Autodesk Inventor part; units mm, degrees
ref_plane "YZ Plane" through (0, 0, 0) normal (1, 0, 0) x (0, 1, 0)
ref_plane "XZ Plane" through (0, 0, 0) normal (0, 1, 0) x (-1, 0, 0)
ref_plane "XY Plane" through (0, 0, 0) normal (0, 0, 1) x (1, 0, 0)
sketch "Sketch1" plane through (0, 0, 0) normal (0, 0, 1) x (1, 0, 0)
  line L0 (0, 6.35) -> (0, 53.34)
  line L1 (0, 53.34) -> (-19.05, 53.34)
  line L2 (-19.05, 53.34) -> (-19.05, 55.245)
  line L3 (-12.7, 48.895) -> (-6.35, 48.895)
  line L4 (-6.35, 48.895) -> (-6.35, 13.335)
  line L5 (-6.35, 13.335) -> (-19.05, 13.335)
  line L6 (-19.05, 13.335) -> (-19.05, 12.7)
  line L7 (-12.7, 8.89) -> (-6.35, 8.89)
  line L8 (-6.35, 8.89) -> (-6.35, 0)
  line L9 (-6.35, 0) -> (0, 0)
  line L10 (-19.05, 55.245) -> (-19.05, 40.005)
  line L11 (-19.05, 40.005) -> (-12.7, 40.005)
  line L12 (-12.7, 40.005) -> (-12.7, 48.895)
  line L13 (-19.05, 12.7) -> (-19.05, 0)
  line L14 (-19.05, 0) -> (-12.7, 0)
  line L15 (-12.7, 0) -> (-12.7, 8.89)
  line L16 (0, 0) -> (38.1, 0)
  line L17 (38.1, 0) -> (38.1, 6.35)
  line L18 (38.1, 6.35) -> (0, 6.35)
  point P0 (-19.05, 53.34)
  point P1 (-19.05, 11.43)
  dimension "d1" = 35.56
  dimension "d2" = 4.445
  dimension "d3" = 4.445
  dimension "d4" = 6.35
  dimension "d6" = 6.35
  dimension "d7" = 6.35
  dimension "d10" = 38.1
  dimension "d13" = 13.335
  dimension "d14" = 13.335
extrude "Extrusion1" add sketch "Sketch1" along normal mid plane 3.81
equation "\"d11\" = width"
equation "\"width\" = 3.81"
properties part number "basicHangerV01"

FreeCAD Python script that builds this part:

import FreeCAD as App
import Part
import Sketcher

V = App.Vector
Q = App.Units.Quantity

doc = App.newDocument("Part")
body = doc.addObject("PartDesign::Body", "Body")

# Sketch on XY plane
sketch1 = body.newObject("Sketcher::SketchObject", "Sketch")
sketch1.AttachmentSupport = (doc.getObject("XY_Plane"), [""])
sketch1.MapMode = "FlatFace"
sketch1.addGeometry([
    Part.LineSegment(V(38, 6, 0), V(0, 6, 0)),  # 0
    Part.LineSegment(V(0, 6, 0), V(0, 53, 0)),  # 1
    Part.LineSegment(V(0, 53, 0), V(-19, 53, 0)),  # 2
    Part.LineSegment(V(-19, 53, 0), V(-19, 40, 0)),  # 3
    Part.LineSegment(V(-19, 40, 0), V(-13, 40, 0)),  # 4
    Part.LineSegment(V(-13, 40, 0), V(-13, 49, 0)),  # 5
    Part.LineSegment(V(-13, 49, 0), V(-6, 49, 0)),  # 6
    Part.LineSegment(V(-6, 49, 0), V(-6, 13, 0)),  # 7
    Part.LineSegment(V(-6, 13, 0), V(-19, 13, 0)),  # 8
    Part.LineSegment(V(-19, 13, 0), V(-19, 0, 0)),  # 9
    Part.LineSegment(V(-19, 0, 0), V(-13, 0, 0)),  # 10
    Part.LineSegment(V(-13, 0, 0), V(-13, 9, 0)),  # 11
    Part.LineSegment(V(-13, 9, 0), V(-6, 9, 0)),  # 12
    Part.LineSegment(V(-6, 9, 0), V(-6, 0, 0)),  # 13
    Part.LineSegment(V(-6, 0, 0), V(38, 0, 0)),  # 14
    Part.LineSegment(V(38, 0, 0), V(38, 6, 0)),  # 15
], False)
sketch1.addConstraint([
    Sketcher.Constraint("Coincident", 0, 2, 1, 1),
    Sketcher.Constraint("Coincident", 1, 2, 2, 1),
    Sketcher.Constraint("Coincident", 2, 2, 3, 1),
    Sketcher.Constraint("Coincident", 3, 2, 4, 1),
    Sketcher.Constraint("Coincident", 4, 2, 5, 1),
    Sketcher.Constraint("Coincident", 5, 2, 6, 1),
    Sketcher.Constraint("Coincident", 6, 2, 7, 1),
    Sketcher.Constraint("Coincident", 7, 2, 8, 1),
    Sketcher.Constraint("Coincident", 8, 2, 9, 1),
    Sketcher.Constraint("Coincident", 9, 2, 10, 1),
    Sketcher.Constraint("Coincident", 10, 2, 11, 1),
    Sketcher.Constraint("Coincident", 11, 2, 12, 1),
    Sketcher.Constraint("Coincident", 12, 2, 13, 1),
    Sketcher.Constraint("Coincident", 13, 2, 14, 1),
    Sketcher.Constraint("Coincident", 14, 2, 15, 1),
    Sketcher.Constraint("Coincident", 15, 2, 0, 1),
    Sketcher.Constraint("Horizontal", 0),
    Sketcher.Constraint("Vertical", 1),
    Sketcher.Constraint("Horizontal", 2),
    Sketcher.Constraint("Vertical", 3),
    Sketcher.Constraint("Horizontal", 4),
    Sketcher.Constraint("Vertical", 5),
    Sketcher.Constraint("Horizontal", 6),
    Sketcher.Constraint("Vertical", 7),
    Sketcher.Constraint("Horizontal", 8),
    Sketcher.Constraint("Vertical", 9),
    Sketcher.Constraint("Horizontal", 10),
    Sketcher.Constraint("Vertical", 11),
    Sketcher.Constraint("Horizontal", 12),
    Sketcher.Constraint("Vertical", 13),
    Sketcher.Constraint("Horizontal", 14),
    Sketcher.Constraint("Vertical", 15),
    Sketcher.Constraint("PointOnObject", 0, 2, -2),
    Sketcher.Constraint("PointOnObject", 9, 2, -1),
    Sketcher.Constraint("PointOnObject", 13, 2, -1),
    Sketcher.Constraint("Vertical", 3, 2, 8, 2),
    Sketcher.Constraint("Vertical", 5, 2, 10, 2),
    Sketcher.Constraint("Vertical", 7, 2, 12, 2),
    Sketcher.Constraint("Equal", 4, 6),
    Sketcher.Constraint("Equal", 3, 9),
    Sketcher.Constraint("Equal", 5, 11),
    Sketcher.Constraint("Equal", 12, 15),
    Sketcher.Constraint("DistanceX", 0, 2, 0, 1, Q("1.5 in")),
    Sketcher.Constraint("DistanceY", 7, 2, 7, 1, Q("1.4 in")),
    Sketcher.Constraint("DistanceX", 4, 1, 4, 2, Q("0.25 in")),
    Sketcher.Constraint("DistanceY", 3, 2, 3, 1, Q("0.525 in")),
    Sketcher.Constraint("DistanceX", 6, 2, -1, 1, Q("0.25 in")),
    Sketcher.Constraint("DistanceY", 5, 2, 2, 2, Q("0.175 in")),
])
pad1 = body.newObject("PartDesign::Pad", "Pad")
pad1.Profile = sketch1
pad1.Length = Q("0.15 in")
pad1.Midplane = True

doc.recompute()
